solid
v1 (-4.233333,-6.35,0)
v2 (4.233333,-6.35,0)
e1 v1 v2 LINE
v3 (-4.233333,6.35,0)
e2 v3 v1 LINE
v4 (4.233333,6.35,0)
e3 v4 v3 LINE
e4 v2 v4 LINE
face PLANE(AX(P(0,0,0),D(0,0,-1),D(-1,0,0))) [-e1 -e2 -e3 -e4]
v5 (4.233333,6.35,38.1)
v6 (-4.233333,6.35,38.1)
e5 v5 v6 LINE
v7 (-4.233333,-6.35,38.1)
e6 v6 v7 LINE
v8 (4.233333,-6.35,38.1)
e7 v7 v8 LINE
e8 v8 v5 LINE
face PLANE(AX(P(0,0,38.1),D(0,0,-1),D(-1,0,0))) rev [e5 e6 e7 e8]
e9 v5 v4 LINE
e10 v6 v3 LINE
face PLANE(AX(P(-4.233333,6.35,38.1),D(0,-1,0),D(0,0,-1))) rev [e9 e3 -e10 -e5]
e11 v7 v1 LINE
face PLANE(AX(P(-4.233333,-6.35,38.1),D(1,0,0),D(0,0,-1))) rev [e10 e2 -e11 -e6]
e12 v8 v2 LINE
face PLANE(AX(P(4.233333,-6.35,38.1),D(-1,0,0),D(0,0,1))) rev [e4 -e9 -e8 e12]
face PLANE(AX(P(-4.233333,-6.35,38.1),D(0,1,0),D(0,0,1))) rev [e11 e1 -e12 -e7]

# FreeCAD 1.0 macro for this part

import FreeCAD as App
import Part
import Sketcher
Q = App.Units.Quantity

doc = App.newDocument("Part")
body = doc.addObject("PartDesign::Body", "Body")

# Sketch on XY plane
sketch1 = body.newObject("Sketcher::SketchObject", "Sketch")
sketch1.AttachmentSupport = (doc.getObject("XY_Plane"), [""])
sketch1.MapMode = "FlatFace"
sketch1.addGeometry([
    Part.LineSegment(App.Vector(-4, 6, 0), App.Vector(-4, -6, 0)),
    Part.LineSegment(App.Vector(-4, -6, 0), App.Vector(4, -6, 0)),
    Part.LineSegment(App.Vector(4, -6, 0), App.Vector(4, 6, 0)),
    Part.LineSegment(App.Vector(4, 6, 0), App.Vector(-4, 6, 0)),
], False)
sketch1.addConstraint([
    Sketcher.Constraint("Coincident", 0, 2, 1, 1),
    Sketcher.Constraint("Coincident", 1, 2, 2, 1),
    Sketcher.Constraint("Coincident", 2, 2, 3, 1),
    Sketcher.Constraint("Coincident", 3, 2, 0, 1),
    Sketcher.Constraint("Vertical", 0),
    Sketcher.Constraint("Horizontal", 1),
    Sketcher.Constraint("Vertical", 2),
    Sketcher.Constraint("Horizontal", 3),
    Sketcher.Constraint("Symmetric", 0, 2, 2, 2, -1, 1),
    Sketcher.Constraint("DistanceY", 0, 2, 0, 1, Q("0.5 in")),
    Sketcher.Constraint("DistanceX", 1, 1, 1, 2, Q("8.466667 mm")),
])
pad1 = body.newObject("PartDesign::Pad", "Pad")
pad1.Profile = sketch1
pad1.Length = Q("1.5 in")

doc.recompute()
